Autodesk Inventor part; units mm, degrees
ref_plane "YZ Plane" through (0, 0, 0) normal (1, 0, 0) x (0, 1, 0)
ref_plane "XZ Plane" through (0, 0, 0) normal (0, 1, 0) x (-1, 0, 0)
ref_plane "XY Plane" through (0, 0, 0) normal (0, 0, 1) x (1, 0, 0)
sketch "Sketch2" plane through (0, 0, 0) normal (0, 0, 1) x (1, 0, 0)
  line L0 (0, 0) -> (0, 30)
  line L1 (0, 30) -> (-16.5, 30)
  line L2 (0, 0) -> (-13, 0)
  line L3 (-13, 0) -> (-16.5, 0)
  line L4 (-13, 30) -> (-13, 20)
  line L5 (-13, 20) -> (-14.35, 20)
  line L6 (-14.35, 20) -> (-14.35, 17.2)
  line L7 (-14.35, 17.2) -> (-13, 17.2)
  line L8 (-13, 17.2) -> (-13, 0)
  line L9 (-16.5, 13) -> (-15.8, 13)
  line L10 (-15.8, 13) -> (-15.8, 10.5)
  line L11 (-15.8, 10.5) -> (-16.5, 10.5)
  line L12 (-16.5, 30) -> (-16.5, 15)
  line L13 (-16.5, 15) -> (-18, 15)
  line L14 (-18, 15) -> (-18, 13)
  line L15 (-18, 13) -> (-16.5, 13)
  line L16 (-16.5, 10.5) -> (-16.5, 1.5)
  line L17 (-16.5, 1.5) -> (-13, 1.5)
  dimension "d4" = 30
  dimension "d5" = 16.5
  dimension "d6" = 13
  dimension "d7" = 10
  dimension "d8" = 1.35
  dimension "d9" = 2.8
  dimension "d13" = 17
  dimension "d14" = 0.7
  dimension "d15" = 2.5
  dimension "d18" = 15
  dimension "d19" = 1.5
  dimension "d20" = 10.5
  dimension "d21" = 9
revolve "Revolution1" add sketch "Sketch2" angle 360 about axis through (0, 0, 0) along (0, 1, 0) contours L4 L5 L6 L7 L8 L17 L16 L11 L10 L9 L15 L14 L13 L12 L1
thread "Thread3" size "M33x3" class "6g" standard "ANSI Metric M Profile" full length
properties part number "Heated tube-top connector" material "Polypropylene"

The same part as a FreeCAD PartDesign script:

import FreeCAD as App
import Part
import Sketcher


def add_polygon(sketch, points):
    """Adds a closed chain of lines whose ends are joined by coincident constraints."""
    first, n = sketch.GeometryCount, len(points)
    for a, b in zip(points, points[1:] + points[:1]):
        sketch.addGeometry(Part.LineSegment(App.Vector(*a, 0), App.Vector(*b, 0)), False)
    for i in range(n):
        sketch.addConstraint(Sketcher.Constraint("Coincident", first + i, 2, first + (i + 1) % n, 1))

doc = App.newDocument("Part")
body = doc.addObject("PartDesign::Body", "Body")

sketch1 = body.newObject("Sketcher::SketchObject", "Sketch")
sketch1.AttachmentSupport = (doc.getObject("XY_Plane"), [""])
sketch1.MapMode = "FlatFace"
add_polygon(sketch1, [(-13, 20), (-13, 30), (-16.5, 30), (-16.5, 15), (-18, 15), (-18, 13), (-15.8, 13), (-15.8, 10.5), (-16.5, 10.5), (-16.5, 1.5), (-13, 1.5), (-13, 17.2), (-14.3, 17.2), (-14.3, 20)])
sketch1.addConstraint([
    Sketcher.Constraint("Vertical", 0),
    Sketcher.Constraint("Horizontal", 1),
    Sketcher.Constraint("Vertical", 2),
    Sketcher.Constraint("Horizontal", 3),
    Sketcher.Constraint("Vertical", 4),
    Sketcher.Constraint("Horizontal", 5),
    Sketcher.Constraint("Vertical", 6),
    Sketcher.Constraint("Horizontal", 7),
    Sketcher.Constraint("Vertical", 8),
    Sketcher.Constraint("Horizontal", 9),
    Sketcher.Constraint("Vertical", 10),
    Sketcher.Constraint("Horizontal", 11),
    Sketcher.Constraint("Vertical", 12),
    Sketcher.Constraint("Horizontal", 13),
    Sketcher.Constraint("Vertical", 2, 2, 7, 2),
    Sketcher.Constraint("Vertical", 0, 2, 9, 2),
    Sketcher.Constraint("DistanceY", 0, 1, 0, 2, 10.0),
    Sketcher.Constraint("DistanceY", 2, 2, 2, 1, 15.0),
    Sketcher.Constraint("DistanceY", 8, 2, 8, 1, 9.0),
    Sketcher.Constraint("DistanceX", 3, 2, 3, 1, 1.5),
    Sketcher.Constraint("DistanceX", 7, 2, 7, 1, 0.7),
    Sketcher.Constraint("DistanceY", 6, 2, 6, 1, 2.5),
    Sketcher.Constraint("DistanceY", 12, 1, 12, 2, 2.8),
    Sketcher.Constraint("DistanceX", 0, 2, -1, 1, 13.0),
    Sketcher.Constraint("DistanceY", -1, 1, 0, 2, 30.0),
    Sketcher.Constraint("DistanceY", -1, 1, 4, 2, 13.0),
    Sketcher.Constraint("DistanceX", 11, 2, 11, 1, 1.35),
    Sketcher.Constraint("DistanceX", 1, 2, -1, 1, 16.5),
])
revolution = body.newObject("PartDesign::Revolution", "Revolution")
revolution.Profile = sketch1
revolution.ReferenceAxis = (sketch1, ["V_Axis"])
revolution.Angle = 360

doc.recompute()
